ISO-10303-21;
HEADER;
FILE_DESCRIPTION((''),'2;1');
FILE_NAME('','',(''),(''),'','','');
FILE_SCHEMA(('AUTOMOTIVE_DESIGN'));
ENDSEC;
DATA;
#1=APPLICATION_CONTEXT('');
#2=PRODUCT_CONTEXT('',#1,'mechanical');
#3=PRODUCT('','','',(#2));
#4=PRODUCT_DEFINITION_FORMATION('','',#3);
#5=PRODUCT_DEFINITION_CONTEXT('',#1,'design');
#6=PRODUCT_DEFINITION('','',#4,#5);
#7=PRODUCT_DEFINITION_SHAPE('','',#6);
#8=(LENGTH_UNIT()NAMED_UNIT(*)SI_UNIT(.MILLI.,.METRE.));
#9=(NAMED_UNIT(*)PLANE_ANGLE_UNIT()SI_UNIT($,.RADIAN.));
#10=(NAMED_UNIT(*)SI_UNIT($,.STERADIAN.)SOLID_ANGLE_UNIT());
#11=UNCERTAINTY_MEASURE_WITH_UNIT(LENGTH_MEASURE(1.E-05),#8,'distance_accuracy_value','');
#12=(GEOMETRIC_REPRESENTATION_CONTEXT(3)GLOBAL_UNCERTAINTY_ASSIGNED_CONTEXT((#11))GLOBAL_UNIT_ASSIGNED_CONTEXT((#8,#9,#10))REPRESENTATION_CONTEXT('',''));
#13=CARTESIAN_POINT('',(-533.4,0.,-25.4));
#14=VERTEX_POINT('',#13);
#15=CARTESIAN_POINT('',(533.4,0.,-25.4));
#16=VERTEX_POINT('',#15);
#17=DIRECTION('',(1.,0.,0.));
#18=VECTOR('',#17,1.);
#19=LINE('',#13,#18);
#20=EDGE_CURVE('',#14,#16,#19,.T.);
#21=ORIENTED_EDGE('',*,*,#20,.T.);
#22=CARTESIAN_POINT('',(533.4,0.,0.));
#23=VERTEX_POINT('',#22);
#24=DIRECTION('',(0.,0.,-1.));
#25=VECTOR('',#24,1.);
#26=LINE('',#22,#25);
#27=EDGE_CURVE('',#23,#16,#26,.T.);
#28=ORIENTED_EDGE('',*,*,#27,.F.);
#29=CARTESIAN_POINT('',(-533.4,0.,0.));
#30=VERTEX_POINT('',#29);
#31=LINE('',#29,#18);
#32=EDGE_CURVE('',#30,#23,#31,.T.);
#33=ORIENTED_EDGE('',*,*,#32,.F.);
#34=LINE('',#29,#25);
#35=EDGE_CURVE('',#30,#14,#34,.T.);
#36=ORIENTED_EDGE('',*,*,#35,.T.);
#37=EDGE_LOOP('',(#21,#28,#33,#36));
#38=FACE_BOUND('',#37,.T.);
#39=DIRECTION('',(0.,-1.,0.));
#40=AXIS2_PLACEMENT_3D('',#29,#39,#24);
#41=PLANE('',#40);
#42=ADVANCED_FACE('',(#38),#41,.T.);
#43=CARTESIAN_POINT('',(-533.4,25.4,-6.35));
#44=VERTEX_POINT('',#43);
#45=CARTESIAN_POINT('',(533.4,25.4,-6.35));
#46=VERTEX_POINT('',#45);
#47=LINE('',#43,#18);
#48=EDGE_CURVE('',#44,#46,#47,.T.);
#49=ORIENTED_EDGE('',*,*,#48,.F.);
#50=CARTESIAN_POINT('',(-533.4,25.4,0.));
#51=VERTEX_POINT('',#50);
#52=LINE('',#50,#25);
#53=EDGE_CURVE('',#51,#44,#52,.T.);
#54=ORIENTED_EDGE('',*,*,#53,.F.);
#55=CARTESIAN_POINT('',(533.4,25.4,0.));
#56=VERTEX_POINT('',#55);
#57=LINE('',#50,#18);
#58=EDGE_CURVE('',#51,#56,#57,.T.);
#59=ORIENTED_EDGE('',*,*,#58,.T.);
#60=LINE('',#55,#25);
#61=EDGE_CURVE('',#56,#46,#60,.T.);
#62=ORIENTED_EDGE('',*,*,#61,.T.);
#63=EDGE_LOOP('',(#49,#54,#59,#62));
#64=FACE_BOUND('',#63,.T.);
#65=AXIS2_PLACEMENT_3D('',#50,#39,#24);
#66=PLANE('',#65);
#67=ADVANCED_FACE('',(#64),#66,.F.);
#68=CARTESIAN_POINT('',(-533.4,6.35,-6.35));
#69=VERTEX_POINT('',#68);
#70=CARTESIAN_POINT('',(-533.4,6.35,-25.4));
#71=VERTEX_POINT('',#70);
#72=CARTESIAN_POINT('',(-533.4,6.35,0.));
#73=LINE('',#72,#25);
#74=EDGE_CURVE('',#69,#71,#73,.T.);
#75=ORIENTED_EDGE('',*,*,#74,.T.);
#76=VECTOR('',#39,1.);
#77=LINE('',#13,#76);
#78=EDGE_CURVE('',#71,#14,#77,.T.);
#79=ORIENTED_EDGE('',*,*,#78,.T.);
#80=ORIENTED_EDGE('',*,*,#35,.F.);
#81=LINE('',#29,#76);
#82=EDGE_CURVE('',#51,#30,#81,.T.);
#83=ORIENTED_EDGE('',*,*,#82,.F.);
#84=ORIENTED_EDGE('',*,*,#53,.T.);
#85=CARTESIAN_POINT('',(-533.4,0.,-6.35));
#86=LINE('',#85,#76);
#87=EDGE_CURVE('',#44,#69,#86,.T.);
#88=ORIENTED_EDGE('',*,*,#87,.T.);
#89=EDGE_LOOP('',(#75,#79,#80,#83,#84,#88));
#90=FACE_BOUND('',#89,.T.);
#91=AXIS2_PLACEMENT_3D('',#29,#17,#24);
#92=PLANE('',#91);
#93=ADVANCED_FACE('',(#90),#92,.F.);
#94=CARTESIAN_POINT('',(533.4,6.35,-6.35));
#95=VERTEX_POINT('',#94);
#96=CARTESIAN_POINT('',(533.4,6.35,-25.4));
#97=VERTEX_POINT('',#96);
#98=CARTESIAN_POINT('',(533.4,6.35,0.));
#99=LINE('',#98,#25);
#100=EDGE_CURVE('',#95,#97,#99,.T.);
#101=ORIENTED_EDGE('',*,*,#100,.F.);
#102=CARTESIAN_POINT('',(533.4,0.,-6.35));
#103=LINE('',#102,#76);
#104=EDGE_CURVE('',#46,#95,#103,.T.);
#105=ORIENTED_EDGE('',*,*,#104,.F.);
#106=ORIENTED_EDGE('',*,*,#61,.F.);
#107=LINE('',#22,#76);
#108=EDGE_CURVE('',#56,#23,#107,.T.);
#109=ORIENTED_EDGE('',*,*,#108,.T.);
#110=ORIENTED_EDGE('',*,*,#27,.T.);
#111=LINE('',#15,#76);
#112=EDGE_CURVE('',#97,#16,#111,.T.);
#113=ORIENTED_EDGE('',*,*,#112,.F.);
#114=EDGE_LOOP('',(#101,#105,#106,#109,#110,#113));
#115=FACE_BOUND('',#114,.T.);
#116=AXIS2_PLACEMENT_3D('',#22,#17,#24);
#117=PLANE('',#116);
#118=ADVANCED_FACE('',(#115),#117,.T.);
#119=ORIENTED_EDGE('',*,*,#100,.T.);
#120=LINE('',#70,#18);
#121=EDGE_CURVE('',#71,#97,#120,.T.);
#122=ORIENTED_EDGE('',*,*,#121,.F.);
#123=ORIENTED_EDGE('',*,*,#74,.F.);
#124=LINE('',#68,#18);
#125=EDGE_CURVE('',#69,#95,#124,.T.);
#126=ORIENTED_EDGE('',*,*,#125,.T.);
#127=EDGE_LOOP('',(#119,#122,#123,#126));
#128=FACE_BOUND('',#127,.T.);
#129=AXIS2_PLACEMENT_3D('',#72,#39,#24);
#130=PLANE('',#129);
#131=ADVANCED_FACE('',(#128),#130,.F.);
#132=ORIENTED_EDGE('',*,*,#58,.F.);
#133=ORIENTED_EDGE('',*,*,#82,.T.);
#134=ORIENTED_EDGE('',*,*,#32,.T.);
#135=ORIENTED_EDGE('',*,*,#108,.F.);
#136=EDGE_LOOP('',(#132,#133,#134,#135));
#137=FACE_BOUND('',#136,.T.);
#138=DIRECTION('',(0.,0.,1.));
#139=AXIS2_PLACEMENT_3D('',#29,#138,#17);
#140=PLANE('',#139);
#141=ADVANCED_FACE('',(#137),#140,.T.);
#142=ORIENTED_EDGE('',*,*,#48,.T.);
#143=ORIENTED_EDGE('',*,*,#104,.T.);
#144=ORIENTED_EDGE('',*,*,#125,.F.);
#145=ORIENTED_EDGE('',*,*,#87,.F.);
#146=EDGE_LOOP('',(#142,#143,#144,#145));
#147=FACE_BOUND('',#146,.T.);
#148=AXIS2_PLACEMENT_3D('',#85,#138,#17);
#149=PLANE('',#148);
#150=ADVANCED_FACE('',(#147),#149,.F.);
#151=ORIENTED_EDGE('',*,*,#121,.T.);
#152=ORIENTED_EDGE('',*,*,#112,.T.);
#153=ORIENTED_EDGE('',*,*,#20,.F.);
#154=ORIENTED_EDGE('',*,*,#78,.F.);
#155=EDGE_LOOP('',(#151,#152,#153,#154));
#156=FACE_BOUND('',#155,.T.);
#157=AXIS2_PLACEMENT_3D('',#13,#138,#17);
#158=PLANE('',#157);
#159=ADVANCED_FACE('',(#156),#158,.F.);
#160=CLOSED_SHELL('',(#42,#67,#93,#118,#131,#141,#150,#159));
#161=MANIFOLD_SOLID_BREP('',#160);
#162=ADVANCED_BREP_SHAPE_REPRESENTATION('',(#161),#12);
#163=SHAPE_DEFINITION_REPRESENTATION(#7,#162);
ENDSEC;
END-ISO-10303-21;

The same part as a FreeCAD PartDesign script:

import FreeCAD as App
import Part
import Sketcher
Q = App.Units.Quantity


def add_polygon(sketch, points):
    """Adds a closed chain of lines whose ends are joined by coincident constraints."""
    first, n = sketch.GeometryCount, len(points)
    for a, b in zip(points, points[1:] + points[:1]):
        sketch.addGeometry(Part.LineSegment(App.Vector(*a, 0), App.Vector(*b, 0)), False)
    for i in range(n):
        sketch.addConstraint(Sketcher.Constraint("Coincident", first + i, 2, first + (i + 1) % n, 1))

doc = App.newDocument("Part")
body = doc.addObject("PartDesign::Body", "Body")

# Sketch on YZ plane
sketch1 = doc.addObject("Sketcher::SketchObject", "Sketch")
body.addObject(sketch1)
sketch1.AttachmentSupport = (doc.YZ_Plane, [""])
sketch1.MapMode = "FlatFace"
add_polygon(sketch1, [(0, -25.4), (6.35, -25.4), (6.35, -6.35), (25.4, -6.35), (25.4, 0), (0, 0)])  # lines 0-5
sketch1.addConstraint(Sketcher.Constraint("Horizontal", 0))
sketch1.addConstraint(Sketcher.Constraint("Vertical", 1))
sketch1.addConstraint(Sketcher.Constraint("Horizontal", 2))
sketch1.addConstraint(Sketcher.Constraint("Vertical", 3))
sketch1.addConstraint(Sketcher.Constraint("Horizontal", 4))
sketch1.addConstraint(Sketcher.Constraint("Vertical", 5))
sketch1.addConstraint(Sketcher.Constraint("Coincident", 4, 2, -1, 1))
sketch1.addConstraint(Sketcher.Constraint("Equal", 2, 1))
sketch1.addConstraint(Sketcher.Constraint("Equal", 0, 3))
sketch1.addConstraint(Sketcher.Constraint("DistanceX", 4, 2, 4, 1, Q("1 in")))
sketch1.addConstraint(Sketcher.Constraint("DistanceX", 0, 1, 0, 2, Q("0.25 in")))
pad1 = doc.addObject("PartDesign::Pad", "Pad")
body.addObject(pad1)
pad1.Profile = sketch1
pad1.Type = "TwoLengths"
pad1.Length = Q("21 in")
pad1.Length2 = Q("21 in")

doc.recompute()
